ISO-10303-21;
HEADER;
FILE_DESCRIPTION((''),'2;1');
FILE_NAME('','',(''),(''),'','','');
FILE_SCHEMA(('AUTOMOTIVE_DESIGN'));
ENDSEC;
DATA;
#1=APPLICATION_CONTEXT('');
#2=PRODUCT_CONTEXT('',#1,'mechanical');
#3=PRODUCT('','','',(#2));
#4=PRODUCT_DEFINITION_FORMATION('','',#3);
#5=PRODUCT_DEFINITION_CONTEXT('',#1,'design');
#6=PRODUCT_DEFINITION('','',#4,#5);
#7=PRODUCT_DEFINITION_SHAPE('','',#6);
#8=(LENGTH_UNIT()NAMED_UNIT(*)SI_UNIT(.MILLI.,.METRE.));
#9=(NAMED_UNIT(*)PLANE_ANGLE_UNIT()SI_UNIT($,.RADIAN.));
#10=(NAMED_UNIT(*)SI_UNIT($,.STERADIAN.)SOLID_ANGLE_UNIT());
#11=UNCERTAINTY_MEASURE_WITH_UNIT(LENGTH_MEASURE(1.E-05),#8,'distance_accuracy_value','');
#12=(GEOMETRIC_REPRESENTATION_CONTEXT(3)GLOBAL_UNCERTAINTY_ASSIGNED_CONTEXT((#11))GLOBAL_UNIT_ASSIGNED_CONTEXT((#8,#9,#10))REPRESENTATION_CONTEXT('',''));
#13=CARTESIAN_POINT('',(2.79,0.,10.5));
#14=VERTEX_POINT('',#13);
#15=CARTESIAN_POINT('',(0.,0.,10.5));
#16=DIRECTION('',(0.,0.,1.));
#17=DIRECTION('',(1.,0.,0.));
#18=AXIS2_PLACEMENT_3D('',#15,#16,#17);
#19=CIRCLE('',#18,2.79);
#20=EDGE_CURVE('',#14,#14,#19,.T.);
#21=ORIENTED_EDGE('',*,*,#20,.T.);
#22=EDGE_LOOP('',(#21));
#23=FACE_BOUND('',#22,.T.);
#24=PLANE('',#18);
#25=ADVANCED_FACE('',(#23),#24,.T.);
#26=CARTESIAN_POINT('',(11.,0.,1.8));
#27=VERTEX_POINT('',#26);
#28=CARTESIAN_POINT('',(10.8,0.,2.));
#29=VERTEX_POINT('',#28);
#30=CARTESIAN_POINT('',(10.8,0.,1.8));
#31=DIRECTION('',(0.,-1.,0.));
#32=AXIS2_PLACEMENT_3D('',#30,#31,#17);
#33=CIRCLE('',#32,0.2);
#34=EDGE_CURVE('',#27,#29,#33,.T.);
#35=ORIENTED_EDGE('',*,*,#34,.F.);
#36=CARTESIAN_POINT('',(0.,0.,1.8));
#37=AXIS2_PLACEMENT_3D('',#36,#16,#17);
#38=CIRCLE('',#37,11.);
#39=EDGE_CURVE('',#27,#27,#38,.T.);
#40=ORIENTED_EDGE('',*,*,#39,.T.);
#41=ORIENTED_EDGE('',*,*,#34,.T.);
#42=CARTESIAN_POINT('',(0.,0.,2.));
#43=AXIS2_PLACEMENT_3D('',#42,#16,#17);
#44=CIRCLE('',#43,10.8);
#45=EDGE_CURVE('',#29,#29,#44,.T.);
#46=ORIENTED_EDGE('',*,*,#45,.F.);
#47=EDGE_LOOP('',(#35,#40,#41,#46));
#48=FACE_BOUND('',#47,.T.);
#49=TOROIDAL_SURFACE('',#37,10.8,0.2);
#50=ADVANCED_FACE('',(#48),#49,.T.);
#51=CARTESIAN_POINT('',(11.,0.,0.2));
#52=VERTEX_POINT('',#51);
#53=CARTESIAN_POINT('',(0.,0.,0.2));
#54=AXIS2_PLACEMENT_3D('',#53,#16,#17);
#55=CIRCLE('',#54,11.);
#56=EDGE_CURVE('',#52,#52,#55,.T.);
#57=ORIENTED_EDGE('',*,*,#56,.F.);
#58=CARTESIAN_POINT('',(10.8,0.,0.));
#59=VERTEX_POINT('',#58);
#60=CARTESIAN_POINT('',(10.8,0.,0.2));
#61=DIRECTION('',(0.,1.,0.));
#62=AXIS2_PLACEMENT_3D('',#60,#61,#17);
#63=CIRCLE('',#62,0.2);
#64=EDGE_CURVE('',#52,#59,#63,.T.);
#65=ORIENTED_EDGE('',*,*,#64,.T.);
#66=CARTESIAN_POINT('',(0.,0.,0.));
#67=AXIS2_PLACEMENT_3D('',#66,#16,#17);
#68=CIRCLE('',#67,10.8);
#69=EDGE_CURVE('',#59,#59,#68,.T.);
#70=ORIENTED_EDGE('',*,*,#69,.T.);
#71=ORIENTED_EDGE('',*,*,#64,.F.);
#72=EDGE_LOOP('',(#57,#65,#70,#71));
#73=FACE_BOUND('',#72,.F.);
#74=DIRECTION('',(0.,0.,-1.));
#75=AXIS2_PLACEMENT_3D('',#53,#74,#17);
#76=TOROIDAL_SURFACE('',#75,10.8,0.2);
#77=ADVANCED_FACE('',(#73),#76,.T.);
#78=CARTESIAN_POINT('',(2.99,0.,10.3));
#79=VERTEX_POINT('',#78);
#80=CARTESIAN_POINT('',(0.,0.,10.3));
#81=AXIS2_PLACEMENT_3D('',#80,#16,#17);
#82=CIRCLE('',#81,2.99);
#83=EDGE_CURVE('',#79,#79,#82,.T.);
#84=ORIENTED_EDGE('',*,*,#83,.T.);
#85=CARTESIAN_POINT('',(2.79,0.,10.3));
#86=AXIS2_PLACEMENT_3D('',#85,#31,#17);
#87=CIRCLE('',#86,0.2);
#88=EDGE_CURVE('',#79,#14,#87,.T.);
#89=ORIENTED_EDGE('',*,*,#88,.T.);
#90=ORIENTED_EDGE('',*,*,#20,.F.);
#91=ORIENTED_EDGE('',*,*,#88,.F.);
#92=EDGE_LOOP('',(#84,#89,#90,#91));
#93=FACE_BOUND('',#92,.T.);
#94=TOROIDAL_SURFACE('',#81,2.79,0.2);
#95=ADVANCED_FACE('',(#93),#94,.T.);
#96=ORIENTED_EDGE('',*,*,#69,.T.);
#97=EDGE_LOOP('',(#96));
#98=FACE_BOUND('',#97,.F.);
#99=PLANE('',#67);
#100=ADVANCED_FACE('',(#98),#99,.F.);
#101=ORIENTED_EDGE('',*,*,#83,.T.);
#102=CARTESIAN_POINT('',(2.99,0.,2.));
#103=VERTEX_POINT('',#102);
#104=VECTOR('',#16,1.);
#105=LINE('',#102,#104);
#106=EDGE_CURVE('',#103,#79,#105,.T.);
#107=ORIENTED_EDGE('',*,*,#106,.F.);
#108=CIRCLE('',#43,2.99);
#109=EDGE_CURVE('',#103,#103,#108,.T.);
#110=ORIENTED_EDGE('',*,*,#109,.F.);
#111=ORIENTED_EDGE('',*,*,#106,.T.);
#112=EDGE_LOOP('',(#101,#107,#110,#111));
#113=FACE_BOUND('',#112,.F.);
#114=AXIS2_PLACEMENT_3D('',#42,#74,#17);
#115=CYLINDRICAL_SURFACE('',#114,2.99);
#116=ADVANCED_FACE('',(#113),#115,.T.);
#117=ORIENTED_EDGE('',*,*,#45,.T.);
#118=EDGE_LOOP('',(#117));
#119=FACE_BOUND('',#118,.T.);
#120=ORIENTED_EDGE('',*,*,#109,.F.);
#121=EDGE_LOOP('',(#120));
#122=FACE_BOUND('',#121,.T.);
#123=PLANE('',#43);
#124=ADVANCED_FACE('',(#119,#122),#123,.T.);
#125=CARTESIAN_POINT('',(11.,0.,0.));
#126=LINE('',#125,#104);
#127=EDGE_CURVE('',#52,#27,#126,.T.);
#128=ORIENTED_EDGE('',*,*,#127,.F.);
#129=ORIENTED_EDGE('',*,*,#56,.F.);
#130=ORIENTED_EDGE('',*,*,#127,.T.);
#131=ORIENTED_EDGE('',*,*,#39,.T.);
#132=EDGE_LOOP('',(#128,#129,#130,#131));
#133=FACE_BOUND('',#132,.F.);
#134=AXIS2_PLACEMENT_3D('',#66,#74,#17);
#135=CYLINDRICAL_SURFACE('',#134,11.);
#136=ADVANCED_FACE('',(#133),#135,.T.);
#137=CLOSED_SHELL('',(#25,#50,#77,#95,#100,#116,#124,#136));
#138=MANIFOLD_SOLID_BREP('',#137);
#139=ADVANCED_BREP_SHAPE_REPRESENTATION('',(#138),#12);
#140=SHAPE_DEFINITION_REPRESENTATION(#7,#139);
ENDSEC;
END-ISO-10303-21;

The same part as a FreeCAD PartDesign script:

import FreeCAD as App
import Part
import Sketcher

V = App.Vector
Q = App.Units.Quantity


def edges_at(feature, points):
    """Names of the edges that pass closest to the given points."""
    edges = feature.Shape.Edges
    near = lambda p: min(range(len(edges)), key=lambda i: edges[i].distToShape(Part.Vertex(*p))[0])
    return sorted({f"Edge{near(p) + 1}" for p in points})

doc = App.newDocument("Part")
body = doc.addObject("PartDesign::Body", "Body")

sketch1 = doc.addObject("Sketcher::SketchObject", "Sketch")
body.addObject(sketch1)
sketch1.AttachmentSupport = (doc.XY_Plane, [""])
sketch1.MapMode = "FlatFace"
sketch1.addGeometry(Part.Circle(V(0, 0, 0), V(0, 0, 1), 11), False)
sketch1.addConstraint(Sketcher.Constraint("Coincident", 0, 3, -1, 1))
sketch1.addConstraint(Sketcher.Constraint("Diameter", 0, Q("22 mm")))
pad1 = doc.addObject("PartDesign::Pad", "Pad")
body.addObject(pad1)
pad1.Profile = sketch1
pad1.Length = 2

sketch2 = doc.addObject("Sketcher::SketchObject", "Sketch001")
body.addObject(sketch2)
sketch2.AttachmentSupport = (doc.XY_Plane, [""])
sketch2.MapMode = "FlatFace"
sketch2.AttachmentOffset = App.Placement(V(0, 0, 2), App.Rotation())
sketch2.addGeometry(Part.Circle(V(0, 0, 0), V(0, 0, 1), 3), False)
sketch2.addConstraint(Sketcher.Constraint("Coincident", 0, 3, -1, 1))
sketch2.addConstraint(Sketcher.Constraint("Diameter", 0, Q("5.98 mm")))
pad2 = doc.addObject("PartDesign::Pad", "Pad001")
body.addObject(pad2)
pad2.Profile = sketch2
pad2.Length = 8.5
doc.recompute()

fillet = doc.addObject("PartDesign::Fillet", "Fillet")
body.addObject(fillet)
fillet.Base = (pad2, edges_at(pad2, [(-11, 0, 2), (-11, 0, 0), (-2.99, 0, 10.5)]))
fillet.Radius = 0.2

doc.recompute()
